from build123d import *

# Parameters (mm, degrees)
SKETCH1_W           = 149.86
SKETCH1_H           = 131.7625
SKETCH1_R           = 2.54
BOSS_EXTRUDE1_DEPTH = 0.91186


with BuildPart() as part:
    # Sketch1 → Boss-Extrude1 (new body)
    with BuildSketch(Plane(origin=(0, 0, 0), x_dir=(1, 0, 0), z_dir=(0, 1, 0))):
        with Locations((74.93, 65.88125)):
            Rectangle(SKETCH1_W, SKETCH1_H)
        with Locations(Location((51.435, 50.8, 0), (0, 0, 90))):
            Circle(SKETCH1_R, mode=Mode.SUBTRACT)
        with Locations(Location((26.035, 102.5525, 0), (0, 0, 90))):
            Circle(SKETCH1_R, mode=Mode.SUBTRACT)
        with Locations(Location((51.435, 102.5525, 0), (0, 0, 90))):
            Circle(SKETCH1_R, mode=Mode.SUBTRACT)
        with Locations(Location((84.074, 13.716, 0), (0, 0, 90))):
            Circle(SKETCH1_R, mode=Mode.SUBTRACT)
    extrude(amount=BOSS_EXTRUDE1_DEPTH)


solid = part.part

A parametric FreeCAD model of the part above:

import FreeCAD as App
import Part
import Sketcher

V = App.Vector
Q = App.Units.Quantity


def add_polygon(sketch, points):
    """Adds a closed chain of lines whose ends are joined by coincident constraints."""
    first, n = sketch.GeometryCount, len(points)
    for a, b in zip(points, points[1:] + points[:1]):
        sketch.addGeometry(Part.LineSegment(App.Vector(*a, 0), App.Vector(*b, 0)), False)
    for i in range(n):
        sketch.addConstraint(Sketcher.Constraint("Coincident", first + i, 2, first + (i + 1) % n, 1))

doc = App.newDocument("Part")
params = doc.addObject("Spreadsheet::Sheet", "Params")
for row, (alias, value) in enumerate([
    ("sketch1_diameter", "0.2 in"),
    ("sketch1_width", "5.9 in"),
    ("sketch1_height", "5.1875 in"),
    ("pad1_length", "0.0359 in"),
], start=1):
    params.set(f"A{row}", alias)
    params.set(f"B{row}", "=" + value)
    params.setAlias(f"B{row}", alias)

body = doc.addObject("PartDesign::Body", "Body")

# Sketch on XZ plane
sketch1 = body.newObject("Sketcher::SketchObject", "Sketch")
sketch1.AttachmentSupport = (doc.getObject("XZ_Plane"), [""])
sketch1.MapMode = "FlatFace"
add_polygon(sketch1, [(0, -131.7625), (0, 0), (149.86, 0), (149.86, -131.7625)])  # lines 0-3
sketch1.addGeometry(Part.Circle(V(51.435, -50.8, 0), V(0, 0, 1), 2.54), False)  # 4
sketch1.addGeometry(Part.Circle(V(84.074, -13.716, 0), V(0, 0, 1), 2.54), False)  # 5
sketch1.addGeometry(Part.Circle(V(26.035, -102.5525, 0), V(0, 0, 1), 2.54), False)  # 6
sketch1.addGeometry(Part.Circle(V(51.435, -102.5525, 0), V(0, 0, 1), 2.54), False)  # 7
sketch1.addConstraint([
    Sketcher.Constraint("Vertical", 0),
    Sketcher.Constraint("Horizontal", 1),
    Sketcher.Constraint("Vertical", 2),
    Sketcher.Constraint("Horizontal", 3),
    Sketcher.Constraint("Coincident", 0, 2, -1, 1),
    Sketcher.Constraint("Equal", 4, 5),
    Sketcher.Constraint("Equal", 5, 6),
    Sketcher.Constraint("Equal", 6, 7),
    Sketcher.Constraint("Horizontal", 6, 3, 7, 3),
    Sketcher.Constraint("Vertical", 4, 3, 7, 3),
    Sketcher.Constraint("Diameter", 4, Q("0.2 in")),
    Sketcher.Constraint("DistanceX", 1, 1, 1, 2, Q("5.9 in")),
    Sketcher.Constraint("DistanceY", 4, 3, -1, 1, Q("2 in")),
    Sketcher.Constraint("DistanceX", 6, 3, 4, 3, Q("1 in")),
    Sketcher.Constraint("DistanceY", 0, 1, 0, 2, Q("5.1875 in")),
    Sketcher.Constraint("DistanceX", -1, 1, 5, 3, Q("3.31 in")),
    Sketcher.Constraint("DistanceY", 5, 3, -1, 1, Q("0.54 in")),
    Sketcher.Constraint("DistanceY", 2, 2, 7, 3, Q("1.15 in")),
    Sketcher.Constraint("DistanceX", -1, 1, 4, 3, Q("2.025 in")),
])
sketch1.setExpression("Constraints[14]", "Params.sketch1_diameter")
sketch1.setExpression("Constraints[15]", "Params.sketch1_width")
sketch1.setExpression("Constraints[18]", "Params.sketch1_height")
pad1 = body.newObject("PartDesign::Pad", "Pad")
pad1.Profile = sketch1
pad1.setExpression("Length", "Params.pad1_length")
pad1.Reversed = True

doc.recompute()
